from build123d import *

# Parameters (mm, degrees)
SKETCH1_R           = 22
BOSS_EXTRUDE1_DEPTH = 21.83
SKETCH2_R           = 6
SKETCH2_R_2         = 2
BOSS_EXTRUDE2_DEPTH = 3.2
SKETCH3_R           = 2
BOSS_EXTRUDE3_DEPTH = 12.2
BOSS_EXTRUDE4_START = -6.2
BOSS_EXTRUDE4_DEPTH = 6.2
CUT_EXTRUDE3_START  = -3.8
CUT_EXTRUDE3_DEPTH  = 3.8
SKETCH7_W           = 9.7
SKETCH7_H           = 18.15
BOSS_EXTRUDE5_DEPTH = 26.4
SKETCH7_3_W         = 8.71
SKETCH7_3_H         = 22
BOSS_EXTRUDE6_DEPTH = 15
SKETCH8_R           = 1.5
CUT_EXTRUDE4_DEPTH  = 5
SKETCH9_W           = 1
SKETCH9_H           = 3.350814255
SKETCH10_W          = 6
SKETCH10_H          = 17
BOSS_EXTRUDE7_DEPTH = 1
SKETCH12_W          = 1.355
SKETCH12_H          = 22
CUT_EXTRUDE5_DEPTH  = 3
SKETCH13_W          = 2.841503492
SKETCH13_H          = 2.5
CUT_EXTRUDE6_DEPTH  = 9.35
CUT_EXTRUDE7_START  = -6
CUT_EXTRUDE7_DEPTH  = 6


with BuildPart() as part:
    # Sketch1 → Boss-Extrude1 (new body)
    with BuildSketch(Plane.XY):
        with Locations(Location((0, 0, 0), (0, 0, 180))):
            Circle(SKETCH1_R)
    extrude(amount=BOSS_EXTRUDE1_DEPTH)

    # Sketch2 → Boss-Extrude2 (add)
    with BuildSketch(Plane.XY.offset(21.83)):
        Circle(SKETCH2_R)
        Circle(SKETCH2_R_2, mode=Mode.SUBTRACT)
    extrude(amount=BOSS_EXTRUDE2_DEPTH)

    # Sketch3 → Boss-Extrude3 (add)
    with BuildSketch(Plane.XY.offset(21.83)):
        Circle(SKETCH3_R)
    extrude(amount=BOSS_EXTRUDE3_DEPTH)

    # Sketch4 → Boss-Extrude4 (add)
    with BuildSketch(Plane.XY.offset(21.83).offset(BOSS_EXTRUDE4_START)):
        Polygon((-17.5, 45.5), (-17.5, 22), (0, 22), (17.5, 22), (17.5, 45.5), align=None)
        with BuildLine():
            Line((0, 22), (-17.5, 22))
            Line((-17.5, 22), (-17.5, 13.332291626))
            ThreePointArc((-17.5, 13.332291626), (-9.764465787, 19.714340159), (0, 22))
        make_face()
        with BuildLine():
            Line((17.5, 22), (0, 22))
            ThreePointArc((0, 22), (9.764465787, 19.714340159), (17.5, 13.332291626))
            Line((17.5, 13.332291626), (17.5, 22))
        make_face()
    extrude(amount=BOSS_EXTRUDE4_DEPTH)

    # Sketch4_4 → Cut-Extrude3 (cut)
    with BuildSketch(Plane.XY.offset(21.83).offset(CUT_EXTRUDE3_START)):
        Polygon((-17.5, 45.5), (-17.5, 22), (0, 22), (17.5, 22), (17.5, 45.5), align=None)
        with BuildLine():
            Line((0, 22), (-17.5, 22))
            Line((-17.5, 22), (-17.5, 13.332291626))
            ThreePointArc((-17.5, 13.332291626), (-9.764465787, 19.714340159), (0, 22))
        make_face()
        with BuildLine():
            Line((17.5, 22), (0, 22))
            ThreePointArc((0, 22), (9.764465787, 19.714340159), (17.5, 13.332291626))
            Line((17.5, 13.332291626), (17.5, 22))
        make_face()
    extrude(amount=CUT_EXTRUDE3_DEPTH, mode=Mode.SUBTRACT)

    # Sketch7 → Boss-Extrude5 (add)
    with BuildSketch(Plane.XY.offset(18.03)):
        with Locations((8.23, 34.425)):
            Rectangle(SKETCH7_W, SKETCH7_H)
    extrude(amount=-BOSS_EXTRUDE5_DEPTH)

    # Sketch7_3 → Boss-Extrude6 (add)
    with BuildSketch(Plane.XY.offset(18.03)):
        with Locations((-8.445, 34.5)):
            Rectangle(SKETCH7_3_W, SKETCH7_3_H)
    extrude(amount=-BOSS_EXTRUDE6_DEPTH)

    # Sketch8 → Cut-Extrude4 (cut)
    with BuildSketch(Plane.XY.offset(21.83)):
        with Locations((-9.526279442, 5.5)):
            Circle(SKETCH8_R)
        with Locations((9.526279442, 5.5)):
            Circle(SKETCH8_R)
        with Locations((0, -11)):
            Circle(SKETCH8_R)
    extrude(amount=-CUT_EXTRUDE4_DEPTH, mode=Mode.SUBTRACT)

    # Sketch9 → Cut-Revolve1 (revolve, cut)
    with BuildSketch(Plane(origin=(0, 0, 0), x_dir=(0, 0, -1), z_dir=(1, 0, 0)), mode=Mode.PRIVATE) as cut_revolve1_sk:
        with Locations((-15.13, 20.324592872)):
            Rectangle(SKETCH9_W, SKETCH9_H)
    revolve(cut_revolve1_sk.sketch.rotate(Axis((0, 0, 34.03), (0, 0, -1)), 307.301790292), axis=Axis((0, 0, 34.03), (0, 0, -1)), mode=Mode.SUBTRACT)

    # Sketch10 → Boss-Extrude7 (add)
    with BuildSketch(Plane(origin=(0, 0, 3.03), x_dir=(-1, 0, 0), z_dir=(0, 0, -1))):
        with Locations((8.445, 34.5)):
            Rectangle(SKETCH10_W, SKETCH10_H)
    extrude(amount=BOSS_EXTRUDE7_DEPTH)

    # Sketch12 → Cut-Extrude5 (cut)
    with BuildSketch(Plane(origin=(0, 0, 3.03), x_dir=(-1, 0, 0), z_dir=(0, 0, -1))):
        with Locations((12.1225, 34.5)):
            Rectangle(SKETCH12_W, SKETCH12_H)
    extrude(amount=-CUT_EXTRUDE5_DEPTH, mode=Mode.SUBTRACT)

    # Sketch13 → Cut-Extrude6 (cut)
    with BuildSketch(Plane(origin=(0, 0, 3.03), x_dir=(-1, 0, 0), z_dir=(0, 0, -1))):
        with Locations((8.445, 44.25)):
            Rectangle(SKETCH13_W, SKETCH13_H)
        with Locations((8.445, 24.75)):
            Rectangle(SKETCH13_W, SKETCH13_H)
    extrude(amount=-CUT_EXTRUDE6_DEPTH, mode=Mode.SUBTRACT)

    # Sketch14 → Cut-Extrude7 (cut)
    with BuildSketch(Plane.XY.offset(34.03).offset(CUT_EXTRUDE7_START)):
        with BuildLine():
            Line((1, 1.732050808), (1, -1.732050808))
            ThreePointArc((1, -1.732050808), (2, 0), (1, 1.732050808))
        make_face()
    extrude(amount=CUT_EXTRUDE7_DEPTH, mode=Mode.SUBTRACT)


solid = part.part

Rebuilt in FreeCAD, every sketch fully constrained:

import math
import FreeCAD as App
import Part
import Sketcher
from FreeCAD import Vector


def add_polygon(sketch, points):
    """Adds a closed chain of lines whose ends are joined by coincident constraints."""
    first, n = sketch.GeometryCount, len(points)
    for a, b in zip(points, points[1:] + points[:1]):
        sketch.addGeometry(Part.LineSegment(App.Vector(*a, 0), App.Vector(*b, 0)), False)
    for i in range(n):
        sketch.addConstraint(Sketcher.Constraint("Coincident", first + i, 2, first + (i + 1) % n, 1))

doc = App.newDocument("Part")
params = doc.addObject("Spreadsheet::Sheet", "Params")
for row, (alias, value) in enumerate([
    ("sketch1_diameter", "44 mm"),
    ("pad1_length", "21.83 mm"),
    ("sketch2_diameter", "12 mm"),
    ("sketch2_diameter2", "4 mm"),
    ("pad2_length", "3.2 mm"),
    ("sketch3_diameter", "4 mm"),
    ("pad3_length", "12.2 mm"),
    ("sketch4_radius", "22 mm"),
    ("sketch4_width", "35 mm"),
    ("pad4_length", "6.2 mm"),
    ("sketch5_radius", "22 mm"),
    ("sketch5_width", "35 mm"),
    ("pocket1_length", "3.8 mm"),
    ("sketch6_width", "9.7 mm"),
    ("sketch6_height", "18.15 mm"),
    ("pad5_length", "26.4 mm"),
    ("sketch7_height", "22 mm"),
    ("sketch7_width", "8.71 mm"),
    ("pad6_length", "15 mm"),
    ("sketch8_diameter", "3 mm"),
    ("pocket2_length", "5 mm"),
    ("sketch9_height", "1 mm"),
    ("groove_angle", "360 deg"),
    ("sketch10_width", "6 mm"),
    ("sketch10_height", "17 mm"),
    ("pad7_length", "1 mm"),
    ("sketch11_height", "22 mm"),
    ("pocket3_length", "3 mm"),
    ("sketch12_height", "2.5 mm"),
    ("pocket4_length", "9.35 mm"),
    ("sketch13_radius", "2 mm"),
    ("pocket5_length", "6 mm"),
], start=1):
    params.set(f"A{row}", alias)
    params.set(f"B{row}", "=" + value)
    params.setAlias(f"B{row}", alias)

body = doc.addObject("PartDesign::Body", "Body")

# Sketch on XY plane
sketch1 = doc.addObject("Sketcher::SketchObject", "Sketch")
body.addObject(sketch1)
sketch1.AttachmentSupport = (doc.XY_Plane, [""])
sketch1.MapMode = "FlatFace"
sketch1.addGeometry(Part.Circle(Vector(0, 0, 0), Vector(0, 0, 1), 22), False)
sketch1.addConstraint(Sketcher.Constraint("Coincident", 0, 3, -1, 1))
sketch1.addConstraint(Sketcher.Constraint("Diameter", 0, 44.0))
sketch1.setExpression("Constraints[1]", "Params.sketch1_diameter")
pad1 = doc.addObject("PartDesign::Pad", "Pad")
body.addObject(pad1)
pad1.Profile = sketch1
pad1.setExpression("Length", "Params.pad1_length")

# Sketch on XY plane
sketch2 = doc.addObject("Sketcher::SketchObject", "Sketch001")
body.addObject(sketch2)
sketch2.AttachmentSupport = (doc.XY_Plane, [""])
sketch2.MapMode = "FlatFace"
sketch2.AttachmentOffset = App.Placement(Vector(0, 0, 21.83), App.Rotation())
sketch2.addGeometry(Part.Circle(Vector(0, 0, 0), Vector(0, 0, 1), 6), False)
sketch2.addGeometry(Part.Circle(Vector(0, 0, 0), Vector(0, 0, 1), 2), False)
sketch2.addConstraint(Sketcher.Constraint("Coincident", 0, 3, -1, 1))
sketch2.addConstraint(Sketcher.Constraint("Coincident", 1, 3, -1, 1))
sketch2.addConstraint(Sketcher.Constraint("Diameter", 0, 12.0))
sketch2.addConstraint(Sketcher.Constraint("Diameter", 1, 4.0))
sketch2.setExpression("Constraints[2]", "Params.sketch2_diameter")
sketch2.setExpression("Constraints[3]", "Params.sketch2_diameter2")
pad2 = doc.addObject("PartDesign::Pad", "Pad001")
body.addObject(pad2)
pad2.Profile = sketch2
pad2.setExpression("Length", "Params.pad2_length")

# Sketch on XY plane
sketch3 = doc.addObject("Sketcher::SketchObject", "Sketch002")
body.addObject(sketch3)
sketch3.AttachmentSupport = (doc.XY_Plane, [""])
sketch3.MapMode = "FlatFace"
sketch3.AttachmentOffset = App.Placement(Vector(0, 0, 21.83), App.Rotation())
sketch3.addGeometry(Part.Circle(Vector(0, 0, 0), Vector(0, 0, 1), 2), False)
sketch3.addConstraint(Sketcher.Constraint("Coincident", 0, 3, -1, 1))
sketch3.addConstraint(Sketcher.Constraint("Diameter", 0, 4.0))
sketch3.setExpression("Constraints[1]", "Params.sketch3_diameter")
pad3 = doc.addObject("PartDesign::Pad", "Pad002")
body.addObject(pad3)
pad3.Profile = sketch3
pad3.setExpression("Length", "Params.pad3_length")

# Sketch on XY plane
sketch4 = doc.addObject("Sketcher::SketchObject", "Sketch003")
body.addObject(sketch4)
sketch4.AttachmentSupport = (doc.XY_Plane, [""])
sketch4.MapMode = "FlatFace"
sketch4.AttachmentOffset = App.Placement(Vector(0, 0, 15.63), App.Rotation())
sketch4.addGeometry(Part.LineSegment(Vector(-17.5, 45.5, 0), Vector(-17.5, 13.332292, 0)), False)
sketch4.addGeometry(Part.ArcOfCircle(Part.Circle(Vector(0, 0, 0), Vector(0, 0, 1), 22), math.radians(90), math.radians(142.69821)), False)
sketch4.addGeometry(Part.ArcOfCircle(Part.Circle(Vector(0, 0, 0), Vector(0, 0, 1), 22), math.radians(37.30179), math.radians(90)), False)
sketch4.addGeometry(Part.LineSegment(Vector(17.5, 13.332292, 0), Vector(17.5, 45.5, 0)), False)
sketch4.addGeometry(Part.LineSegment(Vector(17.5, 45.5, 0), Vector(-17.5, 45.5, 0)), False)
sketch4.addConstraint(Sketcher.Constraint("Coincident", 0, 2, 1, 2))
sketch4.addConstraint(Sketcher.Constraint("Tangent", 1, 1, 2, 2))
sketch4.addConstraint(Sketcher.Constraint("Coincident", 2, 1, 3, 1))
sketch4.addConstraint(Sketcher.Constraint("Coincident", 3, 2, 4, 1))
sketch4.addConstraint(Sketcher.Constraint("Coincident", 4, 2, 0, 1))
sketch4.addConstraint(Sketcher.Constraint("Vertical", 0))
sketch4.addConstraint(Sketcher.Constraint("Vertical", 3))
sketch4.addConstraint(Sketcher.Constraint("Horizontal", 4))
sketch4.addConstraint(Sketcher.Constraint("Coincident", 1, 3, -1, 1))
sketch4.addConstraint(Sketcher.Constraint("Equal", 1, 2))
sketch4.addConstraint(Sketcher.Constraint("PointOnObject", 1, 1, -2))
sketch4.addConstraint(Sketcher.Constraint("Horizontal", 0, 2, 2, 1))
sketch4.addConstraint(Sketcher.Constraint("Radius", 1, 22.0))
sketch4.addConstraint(Sketcher.Constraint("DistanceX", 4, 2, 4, 1, 35.0))
sketch4.addConstraint(Sketcher.Constraint("DistanceY", -1, 1, 3, 2, 45.5))
sketch4.setExpression("Constraints[12]", "Params.sketch4_radius")
sketch4.setExpression("Constraints[13]", "Params.sketch4_width")
pad4 = doc.addObject("PartDesign::Pad", "Pad003")
body.addObject(pad4)
pad4.Profile = sketch4
pad4.setExpression("Length", "Params.pad4_length")

# Sketch on XY plane
sketch5 = doc.addObject("Sketcher::SketchObject", "Sketch004")
body.addObject(sketch5)
sketch5.AttachmentSupport = (doc.XY_Plane, [""])
sketch5.MapMode = "FlatFace"
sketch5.AttachmentOffset = App.Placement(Vector(0, 0, 18.03), App.Rotation())
sketch5.addGeometry(Part.LineSegment(Vector(-17.5, 45.5, 0), Vector(-17.5, 13.332292, 0)), False)
sketch5.addGeometry(Part.ArcOfCircle(Part.Circle(Vector(0, 0, 0), Vector(0, 0, 1), 22), math.radians(90), math.radians(142.69821)), False)
sketch5.addGeometry(Part.ArcOfCircle(Part.Circle(Vector(0, 0, 0), Vector(0, 0, 1), 22), math.radians(37.30179), math.radians(90)), False)
sketch5.addGeometry(Part.LineSegment(Vector(17.5, 13.332292, 0), Vector(17.5, 45.5, 0)), False)
sketch5.addGeometry(Part.LineSegment(Vector(17.5, 45.5, 0), Vector(-17.5, 45.5, 0)), False)
sketch5.addConstraint(Sketcher.Constraint("Coincident", 0, 2, 1, 2))
sketch5.addConstraint(Sketcher.Constraint("Tangent", 1, 1, 2, 2))
sketch5.addConstraint(Sketcher.Constraint("Coincident", 2, 1, 3, 1))
sketch5.addConstraint(Sketcher.Constraint("Coincident", 3, 2, 4, 1))
sketch5.addConstraint(Sketcher.Constraint("Coincident", 4, 2, 0, 1))
sketch5.addConstraint(Sketcher.Constraint("Vertical", 0))
sketch5.addConstraint(Sketcher.Constraint("Vertical", 3))
sketch5.addConstraint(Sketcher.Constraint("Horizontal", 4))
sketch5.addConstraint(Sketcher.Constraint("Coincident", 1, 3, -1, 1))
sketch5.addConstraint(Sketcher.Constraint("Equal", 1, 2))
sketch5.addConstraint(Sketcher.Constraint("PointOnObject", 1, 1, -2))
sketch5.addConstraint(Sketcher.Constraint("Horizontal", 0, 2, 2, 1))
sketch5.addConstraint(Sketcher.Constraint("Radius", 1, 22.0))
sketch5.addConstraint(Sketcher.Constraint("DistanceX", 4, 2, 4, 1, 35.0))
sketch5.addConstraint(Sketcher.Constraint("DistanceY", -1, 1, 3, 2, 45.5))
sketch5.setExpression("Constraints[12]", "Params.sketch5_radius")
sketch5.setExpression("Constraints[13]", "Params.sketch5_width")
pocket1 = doc.addObject("PartDesign::Pocket", "Pocket")
body.addObject(pocket1)
pocket1.Profile = sketch5
pocket1.setExpression("Length", "Params.pocket1_length")
pocket1.Reversed = True

# Sketch on XY plane
sketch6 = doc.addObject("Sketcher::SketchObject", "Sketch005")
body.addObject(sketch6)
sketch6.AttachmentSupport = (doc.XY_Plane, [""])
sketch6.MapMode = "FlatFace"
sketch6.AttachmentOffset = App.Placement(Vector(0, 0, 18.03), App.Rotation())
add_polygon(sketch6, [(3.38, 43.5), (3.38, 25.35), (13.08, 25.35), (13.08, 43.5)])  # lines 0-3
sketch6.addConstraint(Sketcher.Constraint("Vertical", 0))
sketch6.addConstraint(Sketcher.Constraint("Horizontal", 1))
sketch6.addConstraint(Sketcher.Constraint("Vertical", 2))
sketch6.addConstraint(Sketcher.Constraint("Horizontal", 3))
sketch6.addConstraint(Sketcher.Constraint("DistanceX", 1, 1, 1, 2, 9.7))
sketch6.addConstraint(Sketcher.Constraint("DistanceY", 0, 2, 0, 1, 18.15))
sketch6.addConstraint(Sketcher.Constraint("DistanceY", -1, 1, 2, 2, 43.5))
sketch6.addConstraint(Sketcher.Constraint("DistanceX", -1, 1, 0, 2, 3.38))
sketch6.setExpression("Constraints[8]", "Params.sketch6_width")
sketch6.setExpression("Constraints[9]", "Params.sketch6_height")
pad5 = doc.addObject("PartDesign::Pad", "Pad004")
body.addObject(pad5)
pad5.Profile = sketch6
pad5.setExpression("Length", "Params.pad5_length")
pad5.Reversed = True

# Sketch on XY plane
sketch7 = doc.addObject("Sketcher::SketchObject", "Sketch006")
body.addObject(sketch7)
sketch7.AttachmentSupport = (doc.XY_Plane, [""])
sketch7.MapMode = "FlatFace"
sketch7.AttachmentOffset = App.Placement(Vector(0, 0, 18.03), App.Rotation())
add_polygon(sketch7, [(-12.8, 45.5), (-12.8, 23.5), (-4.09, 23.5), (-4.09, 45.5)])  # lines 0-3
sketch7.addConstraint(Sketcher.Constraint("Vertical", 0))
sketch7.addConstraint(Sketcher.Constraint("Horizontal", 1))
sketch7.addConstraint(Sketcher.Constraint("Vertical", 2))
sketch7.addConstraint(Sketcher.Constraint("Horizontal", 3))
sketch7.addConstraint(Sketcher.Constraint("DistanceY", 0, 2, 0, 1, 22.0))
sketch7.addConstraint(Sketcher.Constraint("DistanceX", 1, 1, 1, 2, 8.71))
sketch7.addConstraint(Sketcher.Constraint("DistanceX", 0, 2, -1, 1, 12.8))
sketch7.addConstraint(Sketcher.Constraint("DistanceY", -1, 1, 0, 2, 23.5))
sketch7.setExpression("Constraints[8]", "Params.sketch7_height")
sketch7.setExpression("Constraints[9]", "Params.sketch7_width")
pad6 = doc.addObject("PartDesign::Pad", "Pad005")
body.addObject(pad6)
pad6.Profile = sketch7
pad6.setExpression("Length", "Params.pad6_length")
pad6.Reversed = True

# Sketch on XY plane
sketch8 = doc.addObject("Sketcher::SketchObject", "Sketch007")
body.addObject(sketch8)
sketch8.AttachmentSupport = (doc.XY_Plane, [""])
sketch8.MapMode = "FlatFace"
sketch8.AttachmentOffset = App.Placement(Vector(0, 0, 21.83), App.Rotation())
sketch8.addGeometry(Part.Circle(Vector(-9.526279, 5.5, 0), Vector(0, 0, 1), 1.5), False)
sketch8.addGeometry(Part.Circle(Vector(9.526279, 5.5, 0), Vector(0, 0, 1), 1.5), False)
sketch8.addGeometry(Part.Circle(Vector(0, -11, 0), Vector(0, 0, 1), 1.5), False)
sketch8.addConstraint(Sketcher.Constraint("Equal", 0, 1))
sketch8.addConstraint(Sketcher.Constraint("Equal", 1, 2))
sketch8.addConstraint(Sketcher.Constraint("Symmetric", 0, 3, 1, 3, -2))
sketch8.addConstraint(Sketcher.Constraint("PointOnObject", 2, 3, -2))
sketch8.addConstraint(Sketcher.Constraint("Diameter", 0, 3.0))
sketch8.addConstraint(Sketcher.Constraint("DistanceY", 2, 3, -1, 1, 11.0))
sketch8.addConstraint(Sketcher.Constraint("DistanceY", -1, 1, 0, 3, 5.5))
sketch8.addConstraint(Sketcher.Constraint("DistanceX", 0, 3, -1, 1, 9.526279))
sketch8.setExpression("Constraints[4]", "Params.sketch8_diameter")
pocket2 = doc.addObject("PartDesign::Pocket", "Pocket001")
body.addObject(pocket2)
pocket2.Profile = sketch8
pocket2.setExpression("Length", "Params.pocket2_length")

# Sketch on YZ plane
sketch9 = doc.addObject("Sketcher::SketchObject", "Sketch008")
body.addObject(sketch9)
sketch9.AttachmentSupport = (doc.YZ_Plane, [""])
sketch9.MapMode = "FlatFace"
add_polygon(sketch9, [(22, 15.63), (18.649186, 15.63), (18.649186, 14.63), (22, 14.63)])  # lines 0-3
sketch9.addConstraint(Sketcher.Constraint("Horizontal", 0))
sketch9.addConstraint(Sketcher.Constraint("Vertical", 1))
sketch9.addConstraint(Sketcher.Constraint("Horizontal", 2))
sketch9.addConstraint(Sketcher.Constraint("Vertical", 3))
sketch9.addConstraint(Sketcher.Constraint("DistanceY", 1, 2, 1, 1, 1.0))
sketch9.addConstraint(Sketcher.Constraint("DistanceX", -1, 1, 2, 2, 22.0))
sketch9.addConstraint(Sketcher.Constraint("DistanceY", -1, 1, 0, 2, 15.63))
sketch9.addConstraint(Sketcher.Constraint("DistanceX", 0, 2, 0, 1, 3.350814))
sketch9.setExpression("Constraints[8]", "Params.sketch9_height")
groove = doc.addObject("PartDesign::Groove", "Groove")
body.addObject(groove)
groove.Profile = sketch9
groove.ReferenceAxis = (sketch9, ["V_Axis"])
groove.setExpression("Angle", "Params.groove_angle")

# Sketch on XY plane
sketch10 = doc.addObject("Sketcher::SketchObject", "Sketch009")
body.addObject(sketch10)
sketch10.AttachmentSupport = (doc.XY_Plane, [""])
sketch10.MapMode = "FlatFace"
sketch10.AttachmentOffset = App.Placement(Vector(0, 0, 3.03), App.Rotation())
add_polygon(sketch10, [(-5.445, 43), (-5.445, 26), (-11.445, 26), (-11.445, 43)])  # lines 0-3
sketch10.addConstraint(Sketcher.Constraint("Vertical", 0))
sketch10.addConstraint(Sketcher.Constraint("Horizontal", 1))
sketch10.addConstraint(Sketcher.Constraint("Vertical", 2))
sketch10.addConstraint(Sketcher.Constraint("Horizontal", 3))
sketch10.addConstraint(Sketcher.Constraint("DistanceX", 1, 2, 1, 1, 6.0))
sketch10.addConstraint(Sketcher.Constraint("DistanceY", 0, 2, 0, 1, 17.0))
sketch10.addConstraint(Sketcher.Constraint("DistanceY", -1, 1, 0, 2, 26.0))
sketch10.addConstraint(Sketcher.Constraint("DistanceX", 0, 2, -1, 1, 5.445))
sketch10.setExpression("Constraints[8]", "Params.sketch10_width")
sketch10.setExpression("Constraints[9]", "Params.sketch10_height")
pad7 = doc.addObject("PartDesign::Pad", "Pad006")
body.addObject(pad7)
pad7.Profile = sketch10
pad7.setExpression("Length", "Params.pad7_length")
pad7.Reversed = True

# Sketch on XY plane
sketch11 = doc.addObject("Sketcher::SketchObject", "Sketch010")
body.addObject(sketch11)
sketch11.AttachmentSupport = (doc.XY_Plane, [""])
sketch11.MapMode = "FlatFace"
sketch11.AttachmentOffset = App.Placement(Vector(0, 0, 3.03), App.Rotation())
add_polygon(sketch11, [(-11.445, 45.5), (-11.445, 23.5), (-12.8, 23.5), (-12.8, 45.5)])  # lines 0-3
sketch11.addConstraint(Sketcher.Constraint("Vertical", 0))
sketch11.addConstraint(Sketcher.Constraint("Horizontal", 1))
sketch11.addConstraint(Sketcher.Constraint("Vertical", 2))
sketch11.addConstraint(Sketcher.Constraint("Horizontal", 3))
sketch11.addConstraint(Sketcher.Constraint("DistanceY", 0, 2, 0, 1, 22.0))
sketch11.addConstraint(Sketcher.Constraint("DistanceY", -1, 1, 0, 2, 23.5))
sketch11.addConstraint(Sketcher.Constraint("DistanceX", 1, 2, -1, 1, 12.8))
sketch11.addConstraint(Sketcher.Constraint("DistanceX", 1, 2, 1, 1, 1.355))
sketch11.setExpression("Constraints[8]", "Params.sketch11_height")
pocket3 = doc.addObject("PartDesign::Pocket", "Pocket002")
body.addObject(pocket3)
pocket3.Profile = sketch11
pocket3.setExpression("Length", "Params.pocket3_length")
pocket3.Reversed = True

# Sketch on XY plane
sketch12 = doc.addObject("Sketcher::SketchObject", "Sketch011")
body.addObject(sketch12)
sketch12.AttachmentSupport = (doc.XY_Plane, [""])
sketch12.MapMode = "FlatFace"
sketch12.AttachmentOffset = App.Placement(Vector(0, 0, 3.03), App.Rotation())
add_polygon(sketch12, [(-7.024248, 45.5), (-7.024248, 43), (-9.865752, 43), (-9.865752, 45.5)])  # lines 0-3
add_polygon(sketch12, [(-7.024248, 26), (-7.024248, 23.5), (-9.865752, 23.5), (-9.865752, 26)])  # lines 4-7
sketch12.addConstraint(Sketcher.Constraint("Vertical", 0))
sketch12.addConstraint(Sketcher.Constraint("Horizontal", 1))
sketch12.addConstraint(Sketcher.Constraint("Vertical", 2))
sketch12.addConstraint(Sketcher.Constraint("Horizontal", 3))
sketch12.addConstraint(Sketcher.Constraint("Vertical", 4))
sketch12.addConstraint(Sketcher.Constraint("Horizontal", 5))
sketch12.addConstraint(Sketcher.Constraint("Vertical", 6))
sketch12.addConstraint(Sketcher.Constraint("Horizontal", 7))
sketch12.addConstraint(Sketcher.Constraint("Vertical", 3, 2, 4, 2))
sketch12.addConstraint(Sketcher.Constraint("Vertical", 2, 2, 5, 2))
sketch12.addConstraint(Sketcher.Constraint("Equal", 2, 4))
sketch12.addConstraint(Sketcher.Constraint("DistanceY", 0, 2, 0, 1, 2.5))
sketch12.addConstraint(Sketcher.Constraint("DistanceY", -1, 1, 0, 2, 43.0))
sketch12.addConstraint(Sketcher.Constraint("DistanceY", -1, 1, 6, 2, 26.0))
sketch12.addConstraint(Sketcher.Constraint("DistanceX", 1, 2, 1, 1, 2.841503))
sketch12.addConstraint(Sketcher.Constraint("DistanceX", 0, 2, -1, 1, 7.024248))
sketch12.setExpression("Constraints[19]", "Params.sketch12_height")
pocket4 = doc.addObject("PartDesign::Pocket", "Pocket003")
body.addObject(pocket4)
pocket4.Profile = sketch12
pocket4.setExpression("Length", "Params.pocket4_length")
pocket4.Reversed = True

# Sketch on XY plane
sketch13 = doc.addObject("Sketcher::SketchObject", "Sketch012")
body.addObject(sketch13)
sketch13.AttachmentSupport = (doc.XY_Plane, [""])
sketch13.MapMode = "FlatFace"
sketch13.AttachmentOffset = App.Placement(Vector(0, 0, 28.03), App.Rotation())
sketch13.addGeometry(Part.LineSegment(Vector(1, 1.732051, 0), Vector(1, -1.732051, 0)), False)
sketch13.addGeometry(Part.ArcOfCircle(Part.Circle(Vector(0, 0, 0), Vector(0, 0, 1), 2), math.radians(-60), math.radians(60)), False)
sketch13.addConstraint(Sketcher.Constraint("Coincident", 0, 1, 1, 2))
sketch13.addConstraint(Sketcher.Constraint("Coincident", 1, 1, 0, 2))
sketch13.addConstraint(Sketcher.Constraint("Vertical", 0))
sketch13.addConstraint(Sketcher.Constraint("Coincident", 1, 3, -1, 1))
sketch13.addConstraint(Sketcher.Constraint("Radius", 1, 2.0))
sketch13.addConstraint(Sketcher.Constraint("DistanceX", -1, 1, 0, 1, 1.0))
sketch13.setExpression("Constraints[4]", "Params.sketch13_radius")
pocket5 = doc.addObject("PartDesign::Pocket", "Pocket004")
body.addObject(pocket5)
pocket5.Profile = sketch13
pocket5.setExpression("Length", "Params.pocket5_length")
pocket5.Reversed = True

doc.recompute()
